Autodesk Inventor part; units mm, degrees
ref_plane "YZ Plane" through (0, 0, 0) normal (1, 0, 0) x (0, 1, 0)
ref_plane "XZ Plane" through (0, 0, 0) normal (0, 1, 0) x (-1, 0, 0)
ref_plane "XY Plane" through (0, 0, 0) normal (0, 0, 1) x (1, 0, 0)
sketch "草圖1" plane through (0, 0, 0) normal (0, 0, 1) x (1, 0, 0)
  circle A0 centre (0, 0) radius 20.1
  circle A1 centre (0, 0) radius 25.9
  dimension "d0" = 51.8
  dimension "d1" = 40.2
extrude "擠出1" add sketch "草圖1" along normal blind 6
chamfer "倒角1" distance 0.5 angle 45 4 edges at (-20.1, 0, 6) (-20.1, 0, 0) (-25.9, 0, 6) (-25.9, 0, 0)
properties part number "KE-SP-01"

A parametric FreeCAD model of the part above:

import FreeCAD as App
import Part
import Sketcher

V = App.Vector
Q = App.Units.Quantity


def edges_at(feature, points):
    """Names of the edges that pass closest to the given points."""
    edges = feature.Shape.Edges
    near = lambda p: min(range(len(edges)), key=lambda i: edges[i].distToShape(Part.Vertex(*p))[0])
    return sorted({f"Edge{near(p) + 1}" for p in points})

doc = App.newDocument("Part")
body = doc.addObject("PartDesign::Body", "Body")

sketch1 = doc.addObject("Sketcher::SketchObject", "Sketch")
body.addObject(sketch1)
sketch1.AttachmentSupport = (doc.XY_Plane, [""])
sketch1.MapMode = "FlatFace"
sketch1.addGeometry(Part.Circle(V(0, 0, 0), V(0, 0, 1), 26), False)
sketch1.addGeometry(Part.Circle(V(0, 0, 0), V(0, 0, 1), 20), False)
sketch1.addConstraint(Sketcher.Constraint("Coincident", 0, 3, -1, 1))
sketch1.addConstraint(Sketcher.Constraint("Coincident", 1, 3, -1, 1))
sketch1.addConstraint(Sketcher.Constraint("Diameter", 0, Q("51.8 mm")))
sketch1.addConstraint(Sketcher.Constraint("Diameter", 1, Q("40.2 mm")))
pad1 = doc.addObject("PartDesign::Pad", "Pad")
body.addObject(pad1)
pad1.Profile = sketch1
pad1.Length = 6
doc.recompute()

chamfer = doc.addObject("PartDesign::Chamfer", "Chamfer")
body.addObject(chamfer)
chamfer.Base = (pad1, edges_at(pad1, [
    (-20.1, 0, 6),
    (-20.1, 0, 0),
    (-25.9, 0, 6),
    (-25.9, 0, 0),
]))
chamfer.Size = 0.5

doc.recompute()
